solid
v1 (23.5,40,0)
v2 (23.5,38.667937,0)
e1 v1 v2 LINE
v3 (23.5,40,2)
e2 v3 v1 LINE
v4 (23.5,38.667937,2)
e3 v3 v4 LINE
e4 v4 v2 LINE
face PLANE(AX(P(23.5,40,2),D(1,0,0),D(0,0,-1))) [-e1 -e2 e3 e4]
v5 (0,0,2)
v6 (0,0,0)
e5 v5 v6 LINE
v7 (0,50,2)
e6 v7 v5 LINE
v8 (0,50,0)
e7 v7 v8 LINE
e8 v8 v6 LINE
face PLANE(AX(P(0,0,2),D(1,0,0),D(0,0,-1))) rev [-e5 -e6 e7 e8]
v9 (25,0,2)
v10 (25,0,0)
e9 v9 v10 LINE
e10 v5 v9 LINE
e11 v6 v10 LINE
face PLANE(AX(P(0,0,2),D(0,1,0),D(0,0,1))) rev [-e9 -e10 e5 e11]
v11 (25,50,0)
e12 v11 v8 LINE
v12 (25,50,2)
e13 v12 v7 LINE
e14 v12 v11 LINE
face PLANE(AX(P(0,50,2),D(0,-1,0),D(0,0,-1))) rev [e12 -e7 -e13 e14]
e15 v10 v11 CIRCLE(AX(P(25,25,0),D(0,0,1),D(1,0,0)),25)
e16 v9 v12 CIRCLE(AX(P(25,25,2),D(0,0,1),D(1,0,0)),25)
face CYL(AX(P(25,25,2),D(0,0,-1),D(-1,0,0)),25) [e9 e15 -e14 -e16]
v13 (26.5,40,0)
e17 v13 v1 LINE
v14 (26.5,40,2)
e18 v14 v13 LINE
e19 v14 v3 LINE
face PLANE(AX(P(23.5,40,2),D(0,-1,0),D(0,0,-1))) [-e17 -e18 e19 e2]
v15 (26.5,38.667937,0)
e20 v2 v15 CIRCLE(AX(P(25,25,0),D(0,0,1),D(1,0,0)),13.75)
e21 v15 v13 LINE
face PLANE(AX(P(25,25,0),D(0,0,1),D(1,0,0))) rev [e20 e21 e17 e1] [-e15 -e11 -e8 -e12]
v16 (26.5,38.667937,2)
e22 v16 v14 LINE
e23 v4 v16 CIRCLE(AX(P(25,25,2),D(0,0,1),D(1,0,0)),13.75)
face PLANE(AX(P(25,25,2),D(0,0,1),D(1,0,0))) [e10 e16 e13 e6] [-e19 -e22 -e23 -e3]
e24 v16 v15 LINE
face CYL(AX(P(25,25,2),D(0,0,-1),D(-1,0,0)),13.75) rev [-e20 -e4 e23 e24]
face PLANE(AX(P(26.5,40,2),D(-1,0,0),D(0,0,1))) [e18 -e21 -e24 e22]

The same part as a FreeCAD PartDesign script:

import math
import FreeCAD as App
import Part
import Sketcher
from FreeCAD import Vector

doc = App.newDocument("Part")
body = doc.addObject("PartDesign::Body", "Body")

sketch1 = doc.addObject("Sketcher::SketchObject", "Sketch")
body.addObject(sketch1)
sketch1.AttachmentSupport = (doc.XY_Plane, [""])
sketch1.MapMode = "FlatFace"
sketch1.addGeometry(Part.LineSegment(Vector(0, 0, 0), Vector(25, 0, 0)), False)
sketch1.addGeometry(Part.ArcOfCircle(Part.Circle(Vector(25, 25, 0), Vector(0, 0, 1), 25), math.radians(-90), math.radians(90)), False)
sketch1.addGeometry(Part.LineSegment(Vector(25, 50, 0), Vector(0, 50, 0)), False)
sketch1.addGeometry(Part.LineSegment(Vector(0, 50, 0), Vector(0, 0, 0)), False)
sketch1.addGeometry(Part.LineSegment(Vector(23.5, 38.7, 0), Vector(23.5, 40, 0)), False)
sketch1.addGeometry(Part.LineSegment(Vector(23.5, 40, 0), Vector(26.5, 40, 0)), False)
sketch1.addGeometry(Part.LineSegment(Vector(26.5, 40, 0), Vector(26.5, 38.7, 0)), False)
sketch1.addGeometry(Part.ArcOfCircle(Part.Circle(Vector(25, 25, 0), Vector(0, 0, 1), 13.8), math.radians(96), math.radians(444)), False)
sketch1.addConstraint(Sketcher.Constraint("Tangent", 0, 2, 1, 1))
sketch1.addConstraint(Sketcher.Constraint("Tangent", 1, 2, 2, 1))
sketch1.addConstraint(Sketcher.Constraint("Coincident", 2, 2, 3, 1))
sketch1.addConstraint(Sketcher.Constraint("Coincident", 3, 2, 0, 1))
sketch1.addConstraint(Sketcher.Constraint("Coincident", 4, 2, 5, 1))
sketch1.addConstraint(Sketcher.Constraint("Coincident", 5, 2, 6, 1))
sketch1.addConstraint(Sketcher.Constraint("Coincident", 6, 2, 7, 2))
sketch1.addConstraint(Sketcher.Constraint("Coincident", 7, 1, 4, 1))
sketch1.addConstraint(Sketcher.Constraint("Horizontal", 0))
sketch1.addConstraint(Sketcher.Constraint("Horizontal", 2))
sketch1.addConstraint(Sketcher.Constraint("Vertical", 3))
sketch1.addConstraint(Sketcher.Constraint("Vertical", 4))
sketch1.addConstraint(Sketcher.Constraint("Horizontal", 5))
sketch1.addConstraint(Sketcher.Constraint("Vertical", 6))
sketch1.addConstraint(Sketcher.Constraint("Coincident", 3, 2, -1, 1))
sketch1.addConstraint(Sketcher.Constraint("Coincident", 7, 3, 1, 3))
sketch1.addConstraint(Sketcher.Constraint("Horizontal", 6, 2, 7, 1))
sketch1.addConstraint(Sketcher.Constraint("Radius", 1, 25.0))
sketch1.addConstraint(Sketcher.Constraint("DistanceX", 0, 1, 0, 2, 25.0))
sketch1.addConstraint(Sketcher.Constraint("DistanceX", 5, 1, 5, 2, 3.0))
sketch1.addConstraint(Sketcher.Constraint("Radius", 7, 13.75))
sketch1.addConstraint(Sketcher.Constraint("DistanceY", -1, 1, 4, 2, 40.0))
pad1 = doc.addObject("PartDesign::Pad", "Pad")
body.addObject(pad1)
pad1.Profile = sketch1
pad1.Length = 2

doc.recompute()
